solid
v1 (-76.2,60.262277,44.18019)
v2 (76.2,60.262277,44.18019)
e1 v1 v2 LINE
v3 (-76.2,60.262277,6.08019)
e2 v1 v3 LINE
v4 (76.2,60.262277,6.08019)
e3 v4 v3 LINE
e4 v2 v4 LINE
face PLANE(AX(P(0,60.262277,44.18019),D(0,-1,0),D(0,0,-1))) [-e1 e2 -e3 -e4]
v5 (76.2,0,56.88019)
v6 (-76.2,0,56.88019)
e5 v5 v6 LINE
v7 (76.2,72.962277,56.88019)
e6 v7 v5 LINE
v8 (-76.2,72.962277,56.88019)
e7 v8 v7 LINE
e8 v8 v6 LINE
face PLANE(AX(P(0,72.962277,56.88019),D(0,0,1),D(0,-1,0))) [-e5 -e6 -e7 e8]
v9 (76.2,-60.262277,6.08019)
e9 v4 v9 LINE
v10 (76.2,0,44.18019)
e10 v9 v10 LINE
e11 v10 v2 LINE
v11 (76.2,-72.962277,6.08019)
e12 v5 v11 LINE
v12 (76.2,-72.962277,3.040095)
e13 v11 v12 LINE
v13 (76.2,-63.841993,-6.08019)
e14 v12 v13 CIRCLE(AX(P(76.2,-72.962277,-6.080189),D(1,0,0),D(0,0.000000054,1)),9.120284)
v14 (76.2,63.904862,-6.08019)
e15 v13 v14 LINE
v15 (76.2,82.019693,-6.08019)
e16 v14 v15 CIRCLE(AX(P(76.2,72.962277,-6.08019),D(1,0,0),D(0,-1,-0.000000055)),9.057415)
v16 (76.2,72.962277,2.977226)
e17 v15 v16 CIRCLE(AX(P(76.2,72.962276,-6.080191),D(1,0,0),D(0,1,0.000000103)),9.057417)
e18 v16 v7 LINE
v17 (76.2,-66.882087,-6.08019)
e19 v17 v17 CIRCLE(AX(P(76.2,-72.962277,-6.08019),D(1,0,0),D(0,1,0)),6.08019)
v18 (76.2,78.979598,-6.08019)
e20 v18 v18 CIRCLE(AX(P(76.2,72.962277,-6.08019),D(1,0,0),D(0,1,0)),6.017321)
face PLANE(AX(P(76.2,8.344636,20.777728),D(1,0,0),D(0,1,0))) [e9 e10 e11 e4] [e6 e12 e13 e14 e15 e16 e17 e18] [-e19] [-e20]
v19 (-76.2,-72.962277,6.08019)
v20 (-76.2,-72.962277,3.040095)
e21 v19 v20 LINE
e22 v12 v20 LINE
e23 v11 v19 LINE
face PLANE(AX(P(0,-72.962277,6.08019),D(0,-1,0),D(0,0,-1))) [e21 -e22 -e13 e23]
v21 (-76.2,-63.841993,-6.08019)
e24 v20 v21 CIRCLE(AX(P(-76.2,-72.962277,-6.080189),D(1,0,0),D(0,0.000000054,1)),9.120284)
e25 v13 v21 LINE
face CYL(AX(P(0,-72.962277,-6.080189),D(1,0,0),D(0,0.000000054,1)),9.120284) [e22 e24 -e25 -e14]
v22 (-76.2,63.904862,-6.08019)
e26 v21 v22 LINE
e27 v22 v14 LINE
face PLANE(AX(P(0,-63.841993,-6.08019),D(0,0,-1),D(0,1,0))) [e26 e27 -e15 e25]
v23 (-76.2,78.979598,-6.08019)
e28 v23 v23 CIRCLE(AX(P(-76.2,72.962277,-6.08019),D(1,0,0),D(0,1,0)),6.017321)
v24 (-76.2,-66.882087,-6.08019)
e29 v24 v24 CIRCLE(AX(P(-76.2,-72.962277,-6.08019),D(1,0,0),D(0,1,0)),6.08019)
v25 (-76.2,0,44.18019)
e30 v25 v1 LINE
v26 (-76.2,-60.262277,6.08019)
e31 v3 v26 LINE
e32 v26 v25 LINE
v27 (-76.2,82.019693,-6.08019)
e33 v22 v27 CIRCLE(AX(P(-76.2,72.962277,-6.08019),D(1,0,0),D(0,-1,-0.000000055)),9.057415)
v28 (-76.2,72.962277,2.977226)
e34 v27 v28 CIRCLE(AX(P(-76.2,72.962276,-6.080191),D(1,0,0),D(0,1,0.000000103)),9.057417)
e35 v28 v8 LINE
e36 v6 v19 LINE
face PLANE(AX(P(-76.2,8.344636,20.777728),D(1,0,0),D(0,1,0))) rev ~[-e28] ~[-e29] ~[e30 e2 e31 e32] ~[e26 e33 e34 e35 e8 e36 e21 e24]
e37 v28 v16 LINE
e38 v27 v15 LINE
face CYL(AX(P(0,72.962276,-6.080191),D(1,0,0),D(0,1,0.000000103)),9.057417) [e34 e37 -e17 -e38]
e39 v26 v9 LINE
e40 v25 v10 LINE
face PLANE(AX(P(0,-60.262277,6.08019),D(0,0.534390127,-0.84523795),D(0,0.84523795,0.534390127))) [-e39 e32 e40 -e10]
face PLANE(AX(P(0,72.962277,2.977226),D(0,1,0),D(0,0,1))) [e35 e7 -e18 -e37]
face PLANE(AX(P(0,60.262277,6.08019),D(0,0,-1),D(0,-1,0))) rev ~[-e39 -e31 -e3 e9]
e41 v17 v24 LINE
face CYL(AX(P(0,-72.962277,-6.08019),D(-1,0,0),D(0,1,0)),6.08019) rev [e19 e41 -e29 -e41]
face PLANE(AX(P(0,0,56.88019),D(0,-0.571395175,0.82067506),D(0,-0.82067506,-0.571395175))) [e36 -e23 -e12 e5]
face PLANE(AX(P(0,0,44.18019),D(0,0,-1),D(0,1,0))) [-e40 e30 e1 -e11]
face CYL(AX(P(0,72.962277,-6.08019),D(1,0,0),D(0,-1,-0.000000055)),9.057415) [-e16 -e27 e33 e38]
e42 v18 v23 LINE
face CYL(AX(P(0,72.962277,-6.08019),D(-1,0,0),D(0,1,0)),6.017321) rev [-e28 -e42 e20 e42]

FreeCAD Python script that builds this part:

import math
import FreeCAD as App
import Part
import Sketcher
Q = App.Units.Quantity


def add_polygon(sketch, points):
    """Adds a closed chain of lines whose ends are joined by coincident constraints."""
    first, n = sketch.GeometryCount, len(points)
    for a, b in zip(points, points[1:] + points[:1]):
        sketch.addGeometry(Part.LineSegment(App.Vector(*a, 0), App.Vector(*b, 0)), False)
    for i in range(n):
        sketch.addConstraint(Sketcher.Constraint("Coincident", first + i, 2, first + (i + 1) % n, 1))

doc = App.newDocument("Part")
params = doc.addObject("Spreadsheet::Sheet", "Params")
for row, (alias, value) in enumerate([
    ("sketch1_height", "1.5 in"),
    ("pad1_length", "6 in"),
], start=1):
    params.set(f"A{row}", alias)
    params.set(f"B{row}", "=" + value)
    params.setAlias(f"B{row}", alias)

body = doc.addObject("PartDesign::Body", "Body")

sketch1 = doc.addObject("Sketcher::SketchObject", "Sketch")
body.addObject(sketch1)
sketch1.AttachmentSupport = (doc.YZ_Plane, [""])
sketch1.MapMode = "FlatFace"
sketch1.addGeometry(Part.LineSegment(App.Vector(-63.8, -6.1, 0), App.Vector(63.9, -6.1, 0)), False)
sketch1.addGeometry(Part.ArcOfCircle(Part.Circle(App.Vector(73, -6.1, 0), App.Vector(0, 0, 1), 9.1), math.radians(-180), math.radians(0)), False)
sketch1.addGeometry(Part.ArcOfCircle(Part.Circle(App.Vector(73, -6.1, 0), App.Vector(0, 0, 1), 9.1), math.radians(0), math.radians(90)), False)
sketch1.addGeometry(Part.LineSegment(App.Vector(73, 3, 0), App.Vector(73, 56.9, 0)), False)
sketch1.addGeometry(Part.LineSegment(App.Vector(73, 56.9, 0), App.Vector(0, 56.9, 0)), False)
sketch1.addGeometry(Part.LineSegment(App.Vector(0, 56.9, 0), App.Vector(-73, 6.1, 0)), False)
sketch1.addGeometry(Part.LineSegment(App.Vector(-73, 6.1, 0), App.Vector(-73, 3, 0)), False)
sketch1.addGeometry(Part.ArcOfCircle(Part.Circle(App.Vector(-73, -6.1, 0), App.Vector(0, 0, 1), 9.1), math.radians(90), math.radians(360)), False)
sketch1.addGeometry(Part.Circle(App.Vector(-73, -6.1, 0), App.Vector(0, 0, 1), 6.1), False)
sketch1.addGeometry(Part.Circle(App.Vector(73, -6.1, 0), App.Vector(0, 0, 1), 6), False)
add_polygon(sketch1, [(0, 44.2), (60.3, 44.2), (60.3, 6.1), (-60.3, 6.1)])
sketch1.addConstraint(Sketcher.Constraint("Coincident", 0, 2, 1, 1))
sketch1.addConstraint(Sketcher.Constraint("Tangent", 1, 2, 2, 1))
sketch1.addConstraint(Sketcher.Constraint("Coincident", 2, 2, 3, 1))
sketch1.addConstraint(Sketcher.Constraint("Coincident", 3, 2, 4, 1))
sketch1.addConstraint(Sketcher.Constraint("Coincident", 4, 2, 5, 1))
sketch1.addConstraint(Sketcher.Constraint("Coincident", 5, 2, 6, 1))
sketch1.addConstraint(Sketcher.Constraint("Coincident", 6, 2, 7, 1))
sketch1.addConstraint(Sketcher.Constraint("Coincident", 7, 2, 0, 1))
sketch1.addConstraint(Sketcher.Constraint("Horizontal", 0))
sketch1.addConstraint(Sketcher.Constraint("Vertical", 3))
sketch1.addConstraint(Sketcher.Constraint("Horizontal", 4))
sketch1.addConstraint(Sketcher.Constraint("Vertical", 6))
sketch1.addConstraint(Sketcher.Constraint("Horizontal", 10))
sketch1.addConstraint(Sketcher.Constraint("Vertical", 11))
sketch1.addConstraint(Sketcher.Constraint("Horizontal", 12))
sketch1.addConstraint(Sketcher.Constraint("Coincident", 8, 3, 7, 3))
sketch1.addConstraint(Sketcher.Constraint("Coincident", 9, 3, 1, 3))
sketch1.addConstraint(Sketcher.Constraint("Equal", 1, 2))
sketch1.addConstraint(Sketcher.Constraint("Symmetric", 1, 3, 7, 3, -2))
sketch1.addConstraint(Sketcher.Constraint("PointOnObject", 4, 2, -2))
sketch1.addConstraint(Sketcher.Constraint("PointOnObject", 13, 2, -2))
sketch1.addConstraint(Sketcher.Constraint("Horizontal", 9, 3, 0, 2))
sketch1.addConstraint(Sketcher.Constraint("Horizontal", 0, 2, 1, 2))
sketch1.addConstraint(Sketcher.Constraint("Horizontal", 5, 2, 11, 2))
sketch1.addConstraint(Sketcher.Constraint("Vertical", 9, 3, 2, 2))
sketch1.addConstraint(Sketcher.Constraint("Vertical", 8, 3, 5, 2))
sketch1.addConstraint(Sketcher.Constraint("DistanceY", 11, 2, 11, 1, Q("1.5 in")))
sketch1.addConstraint(Sketcher.Constraint("DistanceY", 5, 2, 4, 2, Q("2 in")))
sketch1.addConstraint(Sketcher.Constraint("DistanceX", 10, 2, 3, 2, Q("0.5 in")))
sketch1.addConstraint(Sketcher.Constraint("DistanceX", 5, 2, 12, 2, Q("0.5 in")))
sketch1.addConstraint(Sketcher.Constraint("Diameter", 8, 12.16038))
sketch1.addConstraint(Sketcher.Constraint("Diameter", 9, 12.034642))
sketch1.addConstraint(Sketcher.Constraint("Radius", 1, 9.057415))
sketch1.addConstraint(Sketcher.Constraint("Radius", 7, 9.120284))
sketch1.addConstraint(Sketcher.Constraint("DistanceX", 0, 1, 0, 2, 127.746855))
sketch1.addConstraint(Sketcher.Constraint("DistanceY", 3, 1, 3, 2, 53.902964))
sketch1.addConstraint(Sketcher.Constraint("DistanceY", 1, 3, -1, 1, 6.08019))
sketch1.setExpression("Constraints[30]", "Params.sketch1_height")
pad1 = doc.addObject("PartDesign::Pad", "Pad")
body.addObject(pad1)
pad1.Profile = sketch1
pad1.setExpression("Length", "Params.pad1_length")
pad1.Midplane = True

doc.recompute()
